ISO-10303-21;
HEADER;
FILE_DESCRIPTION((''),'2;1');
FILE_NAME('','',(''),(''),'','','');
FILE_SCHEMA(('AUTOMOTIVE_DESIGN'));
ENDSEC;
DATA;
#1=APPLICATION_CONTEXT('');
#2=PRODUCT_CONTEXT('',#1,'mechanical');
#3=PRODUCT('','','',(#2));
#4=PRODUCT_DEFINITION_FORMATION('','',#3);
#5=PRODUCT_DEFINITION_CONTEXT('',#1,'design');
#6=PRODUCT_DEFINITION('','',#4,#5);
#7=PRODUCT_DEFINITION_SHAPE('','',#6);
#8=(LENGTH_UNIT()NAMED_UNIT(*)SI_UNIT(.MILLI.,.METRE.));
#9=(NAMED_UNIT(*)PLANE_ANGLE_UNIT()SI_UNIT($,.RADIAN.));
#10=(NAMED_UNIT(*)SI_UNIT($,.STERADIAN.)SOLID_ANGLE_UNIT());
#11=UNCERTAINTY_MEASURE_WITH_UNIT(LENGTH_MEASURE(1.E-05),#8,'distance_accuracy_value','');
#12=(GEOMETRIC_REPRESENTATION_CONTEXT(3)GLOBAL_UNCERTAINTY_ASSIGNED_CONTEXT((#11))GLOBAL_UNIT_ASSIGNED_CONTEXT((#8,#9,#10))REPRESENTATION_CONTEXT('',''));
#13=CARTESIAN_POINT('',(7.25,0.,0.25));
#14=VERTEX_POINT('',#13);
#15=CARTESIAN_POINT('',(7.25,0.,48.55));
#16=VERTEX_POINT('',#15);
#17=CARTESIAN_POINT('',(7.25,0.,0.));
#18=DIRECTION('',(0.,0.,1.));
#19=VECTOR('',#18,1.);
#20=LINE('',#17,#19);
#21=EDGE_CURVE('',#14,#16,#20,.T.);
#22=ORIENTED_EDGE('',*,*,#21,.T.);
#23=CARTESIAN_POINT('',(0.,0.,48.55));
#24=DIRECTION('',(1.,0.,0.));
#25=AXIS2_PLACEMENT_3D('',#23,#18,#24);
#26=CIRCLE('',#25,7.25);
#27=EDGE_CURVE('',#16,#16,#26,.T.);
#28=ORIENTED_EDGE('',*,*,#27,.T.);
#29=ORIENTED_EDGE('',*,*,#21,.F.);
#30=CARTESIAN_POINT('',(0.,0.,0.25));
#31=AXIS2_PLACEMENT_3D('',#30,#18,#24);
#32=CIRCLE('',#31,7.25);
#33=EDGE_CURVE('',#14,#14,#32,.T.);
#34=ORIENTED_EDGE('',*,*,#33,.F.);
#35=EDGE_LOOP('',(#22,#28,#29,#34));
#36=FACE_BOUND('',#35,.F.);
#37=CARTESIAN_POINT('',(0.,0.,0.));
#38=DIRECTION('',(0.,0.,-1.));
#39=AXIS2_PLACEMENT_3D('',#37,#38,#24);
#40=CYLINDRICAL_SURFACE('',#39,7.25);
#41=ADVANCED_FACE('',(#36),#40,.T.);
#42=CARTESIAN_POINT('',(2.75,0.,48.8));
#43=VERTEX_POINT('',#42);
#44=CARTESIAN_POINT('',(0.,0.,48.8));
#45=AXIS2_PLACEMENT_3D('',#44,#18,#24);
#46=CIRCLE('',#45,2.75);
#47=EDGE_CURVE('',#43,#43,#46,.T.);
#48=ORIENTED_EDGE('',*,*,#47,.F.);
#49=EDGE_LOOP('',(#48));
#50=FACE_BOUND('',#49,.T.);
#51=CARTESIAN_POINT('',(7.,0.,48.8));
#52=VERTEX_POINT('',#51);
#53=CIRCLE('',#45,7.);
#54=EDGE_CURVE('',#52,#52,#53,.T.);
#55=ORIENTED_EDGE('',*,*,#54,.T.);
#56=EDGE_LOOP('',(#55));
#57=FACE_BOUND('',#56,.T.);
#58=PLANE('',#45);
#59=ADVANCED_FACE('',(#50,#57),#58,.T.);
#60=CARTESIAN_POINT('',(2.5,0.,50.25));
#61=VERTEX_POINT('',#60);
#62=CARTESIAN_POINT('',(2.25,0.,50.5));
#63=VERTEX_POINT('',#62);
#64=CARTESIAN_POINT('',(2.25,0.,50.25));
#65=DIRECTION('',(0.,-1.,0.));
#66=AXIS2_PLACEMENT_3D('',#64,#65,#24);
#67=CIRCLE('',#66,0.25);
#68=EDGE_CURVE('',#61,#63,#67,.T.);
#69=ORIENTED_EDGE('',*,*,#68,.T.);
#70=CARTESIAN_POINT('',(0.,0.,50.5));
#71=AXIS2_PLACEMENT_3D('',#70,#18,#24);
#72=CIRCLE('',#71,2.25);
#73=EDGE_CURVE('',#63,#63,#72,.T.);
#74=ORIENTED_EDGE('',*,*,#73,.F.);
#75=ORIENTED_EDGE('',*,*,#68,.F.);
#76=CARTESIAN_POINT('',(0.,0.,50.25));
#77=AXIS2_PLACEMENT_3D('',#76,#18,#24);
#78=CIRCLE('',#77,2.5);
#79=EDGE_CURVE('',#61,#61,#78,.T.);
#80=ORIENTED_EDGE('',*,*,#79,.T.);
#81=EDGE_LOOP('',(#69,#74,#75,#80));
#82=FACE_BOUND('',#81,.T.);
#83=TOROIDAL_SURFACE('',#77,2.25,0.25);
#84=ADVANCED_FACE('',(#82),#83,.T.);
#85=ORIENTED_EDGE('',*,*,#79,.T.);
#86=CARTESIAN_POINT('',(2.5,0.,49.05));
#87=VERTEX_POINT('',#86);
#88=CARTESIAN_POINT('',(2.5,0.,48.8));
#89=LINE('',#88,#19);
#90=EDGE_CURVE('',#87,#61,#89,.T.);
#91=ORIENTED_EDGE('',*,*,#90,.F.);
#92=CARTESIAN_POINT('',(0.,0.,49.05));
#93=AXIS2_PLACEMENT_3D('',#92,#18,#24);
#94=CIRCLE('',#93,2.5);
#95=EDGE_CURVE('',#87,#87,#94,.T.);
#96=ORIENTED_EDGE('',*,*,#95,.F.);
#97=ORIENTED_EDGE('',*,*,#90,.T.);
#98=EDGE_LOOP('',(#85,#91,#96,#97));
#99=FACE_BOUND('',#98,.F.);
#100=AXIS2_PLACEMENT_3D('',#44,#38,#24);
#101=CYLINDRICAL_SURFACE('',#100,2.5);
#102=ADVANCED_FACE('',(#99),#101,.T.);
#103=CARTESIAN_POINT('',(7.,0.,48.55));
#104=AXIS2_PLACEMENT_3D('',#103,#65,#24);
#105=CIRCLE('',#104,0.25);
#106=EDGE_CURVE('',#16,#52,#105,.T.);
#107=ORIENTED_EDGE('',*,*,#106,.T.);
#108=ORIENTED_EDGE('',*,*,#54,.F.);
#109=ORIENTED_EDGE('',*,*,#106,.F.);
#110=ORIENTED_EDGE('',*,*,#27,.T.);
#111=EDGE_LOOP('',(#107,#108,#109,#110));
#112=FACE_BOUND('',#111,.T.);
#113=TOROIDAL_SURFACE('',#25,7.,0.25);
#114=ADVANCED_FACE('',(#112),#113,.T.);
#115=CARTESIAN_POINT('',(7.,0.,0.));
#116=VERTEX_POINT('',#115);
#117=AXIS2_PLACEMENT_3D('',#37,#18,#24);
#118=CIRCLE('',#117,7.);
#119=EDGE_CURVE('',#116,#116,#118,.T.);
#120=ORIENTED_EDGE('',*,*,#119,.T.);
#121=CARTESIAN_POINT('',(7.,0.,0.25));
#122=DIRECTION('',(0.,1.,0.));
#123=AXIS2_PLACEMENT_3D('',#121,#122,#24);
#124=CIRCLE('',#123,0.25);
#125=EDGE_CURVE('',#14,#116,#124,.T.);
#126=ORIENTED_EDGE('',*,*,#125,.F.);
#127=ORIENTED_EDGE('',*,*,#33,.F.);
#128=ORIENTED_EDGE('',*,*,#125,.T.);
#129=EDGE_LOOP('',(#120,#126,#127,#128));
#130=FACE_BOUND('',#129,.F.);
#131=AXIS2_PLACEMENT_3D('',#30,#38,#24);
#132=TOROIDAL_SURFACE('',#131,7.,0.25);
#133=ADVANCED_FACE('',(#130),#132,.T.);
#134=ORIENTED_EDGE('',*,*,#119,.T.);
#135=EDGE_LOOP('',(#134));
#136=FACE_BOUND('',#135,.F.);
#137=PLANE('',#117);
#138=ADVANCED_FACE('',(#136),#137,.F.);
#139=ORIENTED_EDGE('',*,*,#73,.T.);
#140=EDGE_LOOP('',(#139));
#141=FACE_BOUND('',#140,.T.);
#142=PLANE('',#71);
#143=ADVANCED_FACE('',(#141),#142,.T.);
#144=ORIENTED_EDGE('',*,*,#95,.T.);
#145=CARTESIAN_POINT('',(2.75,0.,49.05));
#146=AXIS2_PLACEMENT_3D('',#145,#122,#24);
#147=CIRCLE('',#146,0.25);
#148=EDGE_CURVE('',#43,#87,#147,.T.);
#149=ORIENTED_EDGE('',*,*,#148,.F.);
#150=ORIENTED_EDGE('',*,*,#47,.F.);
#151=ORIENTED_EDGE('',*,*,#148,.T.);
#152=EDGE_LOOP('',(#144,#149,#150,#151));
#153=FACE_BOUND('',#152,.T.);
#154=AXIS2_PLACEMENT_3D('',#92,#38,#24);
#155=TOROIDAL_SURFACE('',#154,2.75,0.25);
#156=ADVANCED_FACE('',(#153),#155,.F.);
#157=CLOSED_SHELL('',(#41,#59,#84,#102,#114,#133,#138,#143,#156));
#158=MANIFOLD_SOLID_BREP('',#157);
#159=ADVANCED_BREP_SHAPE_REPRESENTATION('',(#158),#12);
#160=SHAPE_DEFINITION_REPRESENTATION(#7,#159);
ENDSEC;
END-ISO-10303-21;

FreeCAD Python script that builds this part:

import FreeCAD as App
import Part
import Sketcher
from FreeCAD import Vector
Q = App.Units.Quantity


def edges_at(feature, points):
    """Names of the edges that pass closest to the given points."""
    edges = feature.Shape.Edges
    near = lambda p: min(range(len(edges)), key=lambda i: edges[i].distToShape(Part.Vertex(*p))[0])
    return sorted({f"Edge{near(p) + 1}" for p in points})

doc = App.newDocument("Part")
body = doc.addObject("PartDesign::Body", "Body")

# Sketch on XY plane
sketch1 = body.newObject("Sketcher::SketchObject", "Sketch")
sketch1.AttachmentSupport = (doc.getObject("XY_Plane"), [""])
sketch1.MapMode = "FlatFace"
sketch1.addGeometry(Part.Circle(Vector(0, 0, 0), Vector(0, 0, 1), 7), False)
sketch1.addConstraint([
    Sketcher.Constraint("Coincident", 0, 3, -1, 1),
    Sketcher.Constraint("Diameter", 0, Q("14.5 mm")),
])
pad1 = body.newObject("PartDesign::Pad", "Pad")
pad1.Profile = sketch1
pad1.Length = 48.8

# Sketch on XY plane
sketch2 = body.newObject("Sketcher::SketchObject", "Sketch001")
sketch2.AttachmentSupport = (doc.getObject("XY_Plane"), [""])
sketch2.MapMode = "FlatFace"
sketch2.AttachmentOffset = App.Placement(Vector(0, 0, 48.8), App.Rotation())
sketch2.addGeometry(Part.Circle(Vector(0, 0, 0), Vector(0, 0, 1), 2.5), False)
sketch2.addConstraint([
    Sketcher.Constraint("Coincident", 0, 3, -1, 1),
    Sketcher.Constraint("Diameter", 0, Q("5 mm")),
])
pad2 = body.newObject("PartDesign::Pad", "Pad001")
pad2.Profile = sketch2
pad2.Length = 1.7
doc.recompute()

fillet = body.newObject("PartDesign::Fillet", "Fillet")
fillet.Base = (pad2, edges_at(pad2, [
    (-7.25, 0, 48.8),
    (-7.25, 0, 0),
    (-2.5, 0, 50.5),
    (-2.5, 0, 48.8),
]))
fillet.Radius = 0.25

doc.recompute()
